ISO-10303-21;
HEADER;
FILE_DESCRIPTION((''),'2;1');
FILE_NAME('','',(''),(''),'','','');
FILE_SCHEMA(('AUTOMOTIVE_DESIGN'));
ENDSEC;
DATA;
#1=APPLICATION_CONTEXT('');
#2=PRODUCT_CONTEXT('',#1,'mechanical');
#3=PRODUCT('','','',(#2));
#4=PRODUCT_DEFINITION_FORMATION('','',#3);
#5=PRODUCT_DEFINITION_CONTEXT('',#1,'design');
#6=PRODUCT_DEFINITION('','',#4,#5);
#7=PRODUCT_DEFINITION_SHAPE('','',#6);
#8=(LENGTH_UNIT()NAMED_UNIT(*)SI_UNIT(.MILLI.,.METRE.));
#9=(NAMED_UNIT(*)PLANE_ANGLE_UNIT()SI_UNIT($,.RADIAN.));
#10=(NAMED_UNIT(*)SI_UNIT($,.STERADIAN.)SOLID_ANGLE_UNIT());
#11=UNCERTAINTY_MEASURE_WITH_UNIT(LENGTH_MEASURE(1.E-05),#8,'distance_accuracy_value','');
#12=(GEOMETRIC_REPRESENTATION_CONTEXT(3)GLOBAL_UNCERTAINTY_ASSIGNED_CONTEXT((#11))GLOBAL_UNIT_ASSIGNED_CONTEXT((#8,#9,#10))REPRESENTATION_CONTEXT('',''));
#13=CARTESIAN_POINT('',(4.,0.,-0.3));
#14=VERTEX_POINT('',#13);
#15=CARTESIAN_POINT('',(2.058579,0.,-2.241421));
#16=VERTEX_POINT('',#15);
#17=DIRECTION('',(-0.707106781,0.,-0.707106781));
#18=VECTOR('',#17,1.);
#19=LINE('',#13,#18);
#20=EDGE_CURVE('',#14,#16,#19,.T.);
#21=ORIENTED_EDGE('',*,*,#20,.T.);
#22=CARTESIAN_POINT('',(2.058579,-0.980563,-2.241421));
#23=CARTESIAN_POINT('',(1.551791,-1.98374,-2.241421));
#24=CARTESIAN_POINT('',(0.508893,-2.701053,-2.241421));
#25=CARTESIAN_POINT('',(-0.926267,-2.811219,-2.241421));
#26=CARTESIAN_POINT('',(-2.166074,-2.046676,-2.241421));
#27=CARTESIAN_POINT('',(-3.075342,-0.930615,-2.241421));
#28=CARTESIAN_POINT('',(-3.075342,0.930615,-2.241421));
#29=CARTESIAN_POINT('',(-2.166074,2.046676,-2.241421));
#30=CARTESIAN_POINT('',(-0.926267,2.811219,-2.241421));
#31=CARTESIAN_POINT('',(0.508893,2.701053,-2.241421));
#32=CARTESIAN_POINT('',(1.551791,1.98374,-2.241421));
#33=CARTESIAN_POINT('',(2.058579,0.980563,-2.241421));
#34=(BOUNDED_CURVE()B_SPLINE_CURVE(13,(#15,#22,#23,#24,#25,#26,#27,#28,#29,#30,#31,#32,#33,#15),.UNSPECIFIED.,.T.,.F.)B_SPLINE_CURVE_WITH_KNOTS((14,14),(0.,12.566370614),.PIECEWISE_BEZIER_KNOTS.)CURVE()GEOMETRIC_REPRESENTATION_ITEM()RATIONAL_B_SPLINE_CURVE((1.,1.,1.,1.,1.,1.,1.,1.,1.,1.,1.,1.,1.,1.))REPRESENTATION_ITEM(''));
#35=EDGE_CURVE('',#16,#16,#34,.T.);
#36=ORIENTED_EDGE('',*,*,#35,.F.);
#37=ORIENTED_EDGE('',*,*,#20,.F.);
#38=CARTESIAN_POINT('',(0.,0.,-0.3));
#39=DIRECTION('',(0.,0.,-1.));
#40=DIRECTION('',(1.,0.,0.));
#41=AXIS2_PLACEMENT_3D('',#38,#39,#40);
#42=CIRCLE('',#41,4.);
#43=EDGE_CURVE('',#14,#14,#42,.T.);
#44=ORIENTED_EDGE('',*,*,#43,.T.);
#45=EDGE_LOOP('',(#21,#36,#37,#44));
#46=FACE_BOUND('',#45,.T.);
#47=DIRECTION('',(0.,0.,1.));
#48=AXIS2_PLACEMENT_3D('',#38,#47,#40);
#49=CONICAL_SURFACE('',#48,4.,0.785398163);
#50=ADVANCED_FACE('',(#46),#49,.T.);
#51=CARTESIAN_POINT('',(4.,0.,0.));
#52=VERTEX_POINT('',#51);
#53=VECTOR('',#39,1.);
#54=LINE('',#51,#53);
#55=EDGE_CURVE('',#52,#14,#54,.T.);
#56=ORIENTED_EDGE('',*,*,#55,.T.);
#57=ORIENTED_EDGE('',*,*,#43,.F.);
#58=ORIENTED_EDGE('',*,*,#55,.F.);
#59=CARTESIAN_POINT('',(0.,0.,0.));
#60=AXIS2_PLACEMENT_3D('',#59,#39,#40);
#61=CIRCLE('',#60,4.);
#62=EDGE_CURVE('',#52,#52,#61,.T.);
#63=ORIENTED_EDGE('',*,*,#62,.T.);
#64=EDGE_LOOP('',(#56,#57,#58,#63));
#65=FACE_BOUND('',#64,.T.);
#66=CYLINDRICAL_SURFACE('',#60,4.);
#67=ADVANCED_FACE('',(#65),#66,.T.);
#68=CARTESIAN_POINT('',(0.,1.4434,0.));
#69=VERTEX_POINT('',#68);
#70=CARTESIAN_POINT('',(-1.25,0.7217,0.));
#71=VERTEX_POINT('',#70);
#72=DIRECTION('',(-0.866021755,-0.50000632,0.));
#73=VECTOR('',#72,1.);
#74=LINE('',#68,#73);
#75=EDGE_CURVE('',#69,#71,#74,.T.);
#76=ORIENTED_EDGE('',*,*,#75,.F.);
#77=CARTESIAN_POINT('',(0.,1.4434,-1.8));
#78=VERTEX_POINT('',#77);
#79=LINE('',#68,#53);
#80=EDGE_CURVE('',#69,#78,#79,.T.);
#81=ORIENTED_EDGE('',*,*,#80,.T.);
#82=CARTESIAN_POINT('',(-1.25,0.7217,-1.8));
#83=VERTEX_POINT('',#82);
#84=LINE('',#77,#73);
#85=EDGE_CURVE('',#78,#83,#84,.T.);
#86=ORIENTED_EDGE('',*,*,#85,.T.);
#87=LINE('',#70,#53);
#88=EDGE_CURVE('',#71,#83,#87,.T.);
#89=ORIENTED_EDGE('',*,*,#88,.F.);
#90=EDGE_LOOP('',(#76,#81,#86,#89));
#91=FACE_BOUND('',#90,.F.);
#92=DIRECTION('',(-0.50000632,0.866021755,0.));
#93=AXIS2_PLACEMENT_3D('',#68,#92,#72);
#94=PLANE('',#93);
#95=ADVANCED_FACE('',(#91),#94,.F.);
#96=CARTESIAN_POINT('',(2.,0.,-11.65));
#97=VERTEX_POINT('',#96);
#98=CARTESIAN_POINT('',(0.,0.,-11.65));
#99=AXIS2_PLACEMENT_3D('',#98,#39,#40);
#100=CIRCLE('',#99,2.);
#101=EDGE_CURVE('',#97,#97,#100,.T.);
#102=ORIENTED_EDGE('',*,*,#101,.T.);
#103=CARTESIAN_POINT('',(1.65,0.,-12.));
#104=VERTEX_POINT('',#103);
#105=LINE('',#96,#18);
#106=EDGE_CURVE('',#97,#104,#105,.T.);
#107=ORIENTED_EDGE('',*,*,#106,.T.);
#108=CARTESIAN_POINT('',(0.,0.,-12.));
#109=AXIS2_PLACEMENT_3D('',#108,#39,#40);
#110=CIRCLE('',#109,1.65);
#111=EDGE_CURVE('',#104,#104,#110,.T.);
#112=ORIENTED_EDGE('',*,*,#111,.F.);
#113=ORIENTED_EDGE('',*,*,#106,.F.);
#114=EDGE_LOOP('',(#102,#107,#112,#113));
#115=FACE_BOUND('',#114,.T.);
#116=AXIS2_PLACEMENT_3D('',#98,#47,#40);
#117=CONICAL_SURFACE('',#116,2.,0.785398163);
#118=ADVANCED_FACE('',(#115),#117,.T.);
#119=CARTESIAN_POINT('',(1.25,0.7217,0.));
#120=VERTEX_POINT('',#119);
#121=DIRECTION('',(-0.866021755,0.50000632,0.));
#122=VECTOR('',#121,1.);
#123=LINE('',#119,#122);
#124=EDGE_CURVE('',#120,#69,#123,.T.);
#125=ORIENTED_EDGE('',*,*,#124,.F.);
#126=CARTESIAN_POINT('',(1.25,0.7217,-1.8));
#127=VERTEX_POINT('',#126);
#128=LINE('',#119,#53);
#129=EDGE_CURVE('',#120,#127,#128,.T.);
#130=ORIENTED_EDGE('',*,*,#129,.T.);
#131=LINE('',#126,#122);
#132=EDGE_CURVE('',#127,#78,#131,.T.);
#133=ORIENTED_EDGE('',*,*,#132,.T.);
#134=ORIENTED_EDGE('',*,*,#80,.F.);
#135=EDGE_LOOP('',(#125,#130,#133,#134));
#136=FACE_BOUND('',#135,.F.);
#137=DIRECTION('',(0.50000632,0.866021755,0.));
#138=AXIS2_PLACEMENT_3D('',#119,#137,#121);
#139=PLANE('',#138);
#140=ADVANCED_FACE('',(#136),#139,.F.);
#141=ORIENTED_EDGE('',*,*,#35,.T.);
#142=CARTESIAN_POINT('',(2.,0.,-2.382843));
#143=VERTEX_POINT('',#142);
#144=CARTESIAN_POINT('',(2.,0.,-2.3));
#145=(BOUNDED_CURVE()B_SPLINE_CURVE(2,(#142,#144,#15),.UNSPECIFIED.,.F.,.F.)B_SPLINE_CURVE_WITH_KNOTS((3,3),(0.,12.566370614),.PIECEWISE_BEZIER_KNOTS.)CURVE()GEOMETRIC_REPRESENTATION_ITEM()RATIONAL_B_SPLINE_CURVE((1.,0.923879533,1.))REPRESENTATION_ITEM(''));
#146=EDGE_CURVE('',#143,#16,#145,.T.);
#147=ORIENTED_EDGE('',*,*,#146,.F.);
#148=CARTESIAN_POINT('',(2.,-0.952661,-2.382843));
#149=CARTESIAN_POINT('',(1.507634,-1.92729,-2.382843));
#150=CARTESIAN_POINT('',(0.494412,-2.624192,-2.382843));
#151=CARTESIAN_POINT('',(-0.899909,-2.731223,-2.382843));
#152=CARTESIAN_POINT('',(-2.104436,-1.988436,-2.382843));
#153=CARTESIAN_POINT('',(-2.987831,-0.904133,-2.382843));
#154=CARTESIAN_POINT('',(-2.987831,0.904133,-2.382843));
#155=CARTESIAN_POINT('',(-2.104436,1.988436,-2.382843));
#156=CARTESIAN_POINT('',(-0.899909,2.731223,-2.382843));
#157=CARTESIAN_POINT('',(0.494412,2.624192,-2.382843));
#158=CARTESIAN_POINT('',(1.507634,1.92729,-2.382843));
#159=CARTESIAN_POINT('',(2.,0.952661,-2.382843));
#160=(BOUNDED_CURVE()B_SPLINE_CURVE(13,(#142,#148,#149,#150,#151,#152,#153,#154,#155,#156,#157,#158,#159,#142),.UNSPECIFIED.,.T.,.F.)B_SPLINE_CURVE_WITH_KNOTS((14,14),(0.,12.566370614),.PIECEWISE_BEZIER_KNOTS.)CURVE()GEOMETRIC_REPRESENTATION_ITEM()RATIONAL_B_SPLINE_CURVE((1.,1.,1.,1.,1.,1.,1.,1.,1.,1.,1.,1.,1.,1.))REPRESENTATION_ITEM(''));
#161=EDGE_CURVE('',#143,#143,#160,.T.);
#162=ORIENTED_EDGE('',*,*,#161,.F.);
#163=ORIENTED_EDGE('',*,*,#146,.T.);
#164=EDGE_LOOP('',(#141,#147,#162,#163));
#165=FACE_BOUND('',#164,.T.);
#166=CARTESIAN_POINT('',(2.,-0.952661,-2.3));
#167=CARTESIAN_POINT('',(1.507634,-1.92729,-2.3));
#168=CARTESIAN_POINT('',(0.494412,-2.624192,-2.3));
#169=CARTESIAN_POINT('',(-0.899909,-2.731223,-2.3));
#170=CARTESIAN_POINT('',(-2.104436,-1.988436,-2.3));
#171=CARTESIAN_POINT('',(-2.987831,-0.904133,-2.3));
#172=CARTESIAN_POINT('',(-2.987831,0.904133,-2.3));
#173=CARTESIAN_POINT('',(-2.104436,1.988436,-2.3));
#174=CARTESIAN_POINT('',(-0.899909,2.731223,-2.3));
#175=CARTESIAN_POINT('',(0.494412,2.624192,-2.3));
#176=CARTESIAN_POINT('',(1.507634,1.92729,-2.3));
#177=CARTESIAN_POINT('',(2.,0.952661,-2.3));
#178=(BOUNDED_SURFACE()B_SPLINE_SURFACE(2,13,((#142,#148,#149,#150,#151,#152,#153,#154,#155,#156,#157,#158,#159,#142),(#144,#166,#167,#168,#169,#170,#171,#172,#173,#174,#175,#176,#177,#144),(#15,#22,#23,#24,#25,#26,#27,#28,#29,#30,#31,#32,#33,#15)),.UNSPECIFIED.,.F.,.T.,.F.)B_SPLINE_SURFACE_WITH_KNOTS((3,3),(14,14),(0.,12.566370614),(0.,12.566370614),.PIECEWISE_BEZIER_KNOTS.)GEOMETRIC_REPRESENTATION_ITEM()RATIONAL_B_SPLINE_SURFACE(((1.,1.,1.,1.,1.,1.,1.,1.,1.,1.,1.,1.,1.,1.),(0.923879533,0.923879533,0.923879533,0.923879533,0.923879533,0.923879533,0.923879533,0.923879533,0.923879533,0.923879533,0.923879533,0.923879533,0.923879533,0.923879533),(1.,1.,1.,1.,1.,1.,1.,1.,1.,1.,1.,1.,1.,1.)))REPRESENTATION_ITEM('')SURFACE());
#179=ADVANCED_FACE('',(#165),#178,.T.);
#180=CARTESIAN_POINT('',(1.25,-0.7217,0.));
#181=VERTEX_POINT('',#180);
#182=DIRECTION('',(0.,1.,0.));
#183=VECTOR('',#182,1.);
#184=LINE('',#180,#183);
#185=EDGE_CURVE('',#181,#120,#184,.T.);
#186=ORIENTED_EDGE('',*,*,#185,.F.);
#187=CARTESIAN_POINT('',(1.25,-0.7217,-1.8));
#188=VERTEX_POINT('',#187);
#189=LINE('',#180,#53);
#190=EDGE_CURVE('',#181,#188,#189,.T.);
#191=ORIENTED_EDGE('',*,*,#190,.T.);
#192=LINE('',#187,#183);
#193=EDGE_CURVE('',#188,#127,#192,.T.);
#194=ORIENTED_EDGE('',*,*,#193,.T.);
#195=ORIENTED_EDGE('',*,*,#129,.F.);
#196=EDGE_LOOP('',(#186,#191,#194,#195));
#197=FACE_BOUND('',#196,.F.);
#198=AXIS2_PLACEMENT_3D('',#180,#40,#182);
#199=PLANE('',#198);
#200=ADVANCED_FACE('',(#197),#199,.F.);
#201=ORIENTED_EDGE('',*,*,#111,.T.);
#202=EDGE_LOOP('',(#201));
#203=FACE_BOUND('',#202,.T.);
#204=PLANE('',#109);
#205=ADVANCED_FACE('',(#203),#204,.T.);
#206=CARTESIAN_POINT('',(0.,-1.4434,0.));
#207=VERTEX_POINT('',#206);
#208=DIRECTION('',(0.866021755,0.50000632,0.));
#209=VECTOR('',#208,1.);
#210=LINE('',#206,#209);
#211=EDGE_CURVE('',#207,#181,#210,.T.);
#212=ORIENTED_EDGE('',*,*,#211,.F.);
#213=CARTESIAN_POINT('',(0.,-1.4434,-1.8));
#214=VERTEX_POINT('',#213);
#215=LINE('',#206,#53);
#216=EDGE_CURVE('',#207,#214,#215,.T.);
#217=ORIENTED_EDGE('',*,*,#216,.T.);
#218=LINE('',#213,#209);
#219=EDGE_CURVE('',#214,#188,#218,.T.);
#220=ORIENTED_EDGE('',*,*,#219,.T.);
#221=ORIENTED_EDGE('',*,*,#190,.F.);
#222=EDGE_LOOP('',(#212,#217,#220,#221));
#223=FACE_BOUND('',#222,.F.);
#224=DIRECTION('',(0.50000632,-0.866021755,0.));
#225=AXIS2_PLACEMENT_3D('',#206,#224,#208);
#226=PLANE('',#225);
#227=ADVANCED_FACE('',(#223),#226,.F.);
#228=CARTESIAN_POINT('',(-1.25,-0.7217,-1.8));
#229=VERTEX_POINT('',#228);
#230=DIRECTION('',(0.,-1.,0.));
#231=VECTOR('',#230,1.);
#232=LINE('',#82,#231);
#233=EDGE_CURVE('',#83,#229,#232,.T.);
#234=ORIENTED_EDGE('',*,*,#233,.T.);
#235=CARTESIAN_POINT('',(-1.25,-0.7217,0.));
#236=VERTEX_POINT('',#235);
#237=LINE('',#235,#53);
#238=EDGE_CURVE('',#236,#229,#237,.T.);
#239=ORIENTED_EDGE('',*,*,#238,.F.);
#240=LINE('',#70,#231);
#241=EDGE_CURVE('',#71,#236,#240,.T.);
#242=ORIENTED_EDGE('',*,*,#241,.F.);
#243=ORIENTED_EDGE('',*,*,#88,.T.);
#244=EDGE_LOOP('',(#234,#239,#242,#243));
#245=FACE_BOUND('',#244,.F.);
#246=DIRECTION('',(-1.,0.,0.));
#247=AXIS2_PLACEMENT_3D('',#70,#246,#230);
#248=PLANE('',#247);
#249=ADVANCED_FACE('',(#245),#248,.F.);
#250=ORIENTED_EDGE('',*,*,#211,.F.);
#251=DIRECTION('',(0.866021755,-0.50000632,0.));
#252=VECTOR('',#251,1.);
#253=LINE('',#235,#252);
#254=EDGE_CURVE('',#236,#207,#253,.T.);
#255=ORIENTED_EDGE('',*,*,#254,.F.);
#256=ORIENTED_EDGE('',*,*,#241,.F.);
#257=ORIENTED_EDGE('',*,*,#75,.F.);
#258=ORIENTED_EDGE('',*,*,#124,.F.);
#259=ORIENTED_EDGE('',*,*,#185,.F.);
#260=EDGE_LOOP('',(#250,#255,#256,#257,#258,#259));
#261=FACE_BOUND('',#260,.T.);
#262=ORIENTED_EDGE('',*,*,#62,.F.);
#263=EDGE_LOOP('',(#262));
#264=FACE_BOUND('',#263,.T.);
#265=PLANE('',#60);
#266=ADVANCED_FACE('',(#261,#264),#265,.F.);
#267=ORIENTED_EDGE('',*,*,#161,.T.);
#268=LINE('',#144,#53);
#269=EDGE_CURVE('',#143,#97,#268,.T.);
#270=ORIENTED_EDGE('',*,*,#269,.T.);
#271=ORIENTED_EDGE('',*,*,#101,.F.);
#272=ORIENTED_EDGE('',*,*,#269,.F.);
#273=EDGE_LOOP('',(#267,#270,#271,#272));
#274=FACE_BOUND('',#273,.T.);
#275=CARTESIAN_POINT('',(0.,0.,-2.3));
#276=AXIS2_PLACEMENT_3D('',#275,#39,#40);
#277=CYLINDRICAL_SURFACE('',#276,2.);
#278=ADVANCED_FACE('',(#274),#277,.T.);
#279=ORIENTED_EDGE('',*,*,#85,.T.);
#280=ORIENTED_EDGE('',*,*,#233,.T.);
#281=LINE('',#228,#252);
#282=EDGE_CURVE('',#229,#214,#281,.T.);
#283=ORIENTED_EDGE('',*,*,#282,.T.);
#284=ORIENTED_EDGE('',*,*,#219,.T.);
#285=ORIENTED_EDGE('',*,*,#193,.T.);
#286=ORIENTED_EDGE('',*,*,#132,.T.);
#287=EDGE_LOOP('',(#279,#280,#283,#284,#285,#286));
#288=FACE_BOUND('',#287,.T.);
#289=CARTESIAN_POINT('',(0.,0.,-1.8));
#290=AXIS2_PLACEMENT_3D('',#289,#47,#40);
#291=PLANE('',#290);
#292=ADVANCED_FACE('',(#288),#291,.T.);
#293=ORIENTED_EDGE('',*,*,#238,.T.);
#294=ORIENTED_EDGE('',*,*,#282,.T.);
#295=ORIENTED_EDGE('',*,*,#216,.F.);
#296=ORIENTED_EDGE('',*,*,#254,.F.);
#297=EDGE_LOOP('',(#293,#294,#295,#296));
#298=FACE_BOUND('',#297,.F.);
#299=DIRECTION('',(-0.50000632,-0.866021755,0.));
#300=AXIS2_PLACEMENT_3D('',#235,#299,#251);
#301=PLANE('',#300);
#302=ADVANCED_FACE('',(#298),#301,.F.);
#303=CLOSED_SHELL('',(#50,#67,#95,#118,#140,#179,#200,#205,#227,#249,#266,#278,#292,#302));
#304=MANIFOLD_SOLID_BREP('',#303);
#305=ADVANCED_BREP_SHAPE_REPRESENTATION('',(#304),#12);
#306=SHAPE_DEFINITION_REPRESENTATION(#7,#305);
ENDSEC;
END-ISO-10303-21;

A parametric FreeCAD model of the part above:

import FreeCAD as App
import Part
import Sketcher
Q = App.Units.Quantity


def edges_at(feature, points):
    """Names of the edges that pass closest to the given points."""
    edges = feature.Shape.Edges
    near = lambda p: min(range(len(edges)), key=lambda i: edges[i].distToShape(Part.Vertex(*p))[0])
    return sorted({f"Edge{near(p) + 1}" for p in points})


def add_polygon(sketch, points):
    """Adds a closed chain of lines whose ends are joined by coincident constraints."""
    first, n = sketch.GeometryCount, len(points)
    for a, b in zip(points, points[1:] + points[:1]):
        sketch.addGeometry(Part.LineSegment(App.Vector(*a, 0), App.Vector(*b, 0)), False)
    for i in range(n):
        sketch.addConstraint(Sketcher.Constraint("Coincident", first + i, 2, first + (i + 1) % n, 1))

doc = App.newDocument("Part")
body = doc.addObject("PartDesign::Body", "Body")

# Sketch on XZ plane
sketch1 = body.newObject("Sketcher::SketchObject", "Sketch")
sketch1.AttachmentSupport = (doc.getObject("XZ_Plane"), [""])
sketch1.MapMode = "FlatFace"
add_polygon(sketch1, [(2, -2.3), (2, -12), (0, -12), (0, 0), (4, 0), (4, -0.3)])  # lines 0-5
sketch1.addConstraint(Sketcher.Constraint("Vertical", 0))
sketch1.addConstraint(Sketcher.Constraint("Horizontal", 1))
sketch1.addConstraint(Sketcher.Constraint("Vertical", 2))
sketch1.addConstraint(Sketcher.Constraint("Horizontal", 3))
sketch1.addConstraint(Sketcher.Constraint("Vertical", 4))
sketch1.addConstraint(Sketcher.Constraint("Coincident", 2, 2, -1, 1))
sketch1.addConstraint(Sketcher.Constraint("DistanceX", 1, 2, 1, 1, Q("2 mm")))
sketch1.addConstraint(Sketcher.Constraint("DistanceX", 3, 1, 3, 2, Q("4 mm")))
sketch1.addConstraint(Sketcher.Constraint("DistanceY", 2, 1, 2, 2, Q("12 mm")))
sketch1.addConstraint(Sketcher.Constraint("DistanceY", 4, 2, 4, 1, Q("0.3 mm")))
sketch1.addConstraint(Sketcher.Constraint("DistanceY", 5, 2, 4, 2, Q("2 mm")))
revolution = body.newObject("PartDesign::Revolution", "Revolution")
revolution.Profile = sketch1
revolution.ReferenceAxis = (sketch1, ["V_Axis"])
revolution.Angle = 360

# Sketch on XY plane
sketch2 = body.newObject("Sketcher::SketchObject", "Sketch001")
sketch2.AttachmentSupport = (doc.getObject("XY_Plane"), [""])
sketch2.MapMode = "FlatFace"
add_polygon(sketch2, [(0, 1.4), (-1.2, 0.7), (-1.2, -0.7), (0, -1.4), (1.2, -0.7), (1.2, 0.7)])  # lines 0-5
sketch2.addConstraint(Sketcher.Constraint("Vertical", 1))
sketch2.addConstraint(Sketcher.Constraint("Vertical", 4))
sketch2.addConstraint(Sketcher.Constraint("Symmetric", 0, 2, 3, 2, -1, 1))
sketch2.addConstraint(Sketcher.Constraint("Symmetric", 2, 2, 5, 2, -1, 1))
sketch2.addConstraint(Sketcher.Constraint("PointOnObject", 2, 2, -2))
sketch2.addConstraint(Sketcher.Constraint("Parallel", 2, 5))
sketch2.addConstraint(Sketcher.Constraint("Horizontal", 1, 2, 3, 2))
sketch2.addConstraint(Sketcher.Constraint("DistanceX", 1, 2, 3, 2, Q("2.5 mm")))
sketch2.addConstraint(Sketcher.Constraint("Angle", 0, Q("-149.9996 deg")))
sketch2.addConstraint(Sketcher.Constraint("DistanceY", 1, 2, 1, 1, Q("1.4434 mm")))
pocket1 = body.newObject("PartDesign::Pocket", "Pocket")
pocket1.Profile = sketch2
pocket1.Length = 1.8
doc.recompute()

fillet = body.newObject("PartDesign::Fillet", "Fillet")
fillet.Base = (pocket1, edges_at(pocket1, [(-2, 0, -2.3)]))
fillet.Radius = 0.2
doc.recompute()

chamfer = body.newObject("PartDesign::Chamfer", "Chamfer")
chamfer.Base = (fillet, edges_at(fillet, [(-2, 0, -12)]))
chamfer.Size = 0.35

doc.recompute()
